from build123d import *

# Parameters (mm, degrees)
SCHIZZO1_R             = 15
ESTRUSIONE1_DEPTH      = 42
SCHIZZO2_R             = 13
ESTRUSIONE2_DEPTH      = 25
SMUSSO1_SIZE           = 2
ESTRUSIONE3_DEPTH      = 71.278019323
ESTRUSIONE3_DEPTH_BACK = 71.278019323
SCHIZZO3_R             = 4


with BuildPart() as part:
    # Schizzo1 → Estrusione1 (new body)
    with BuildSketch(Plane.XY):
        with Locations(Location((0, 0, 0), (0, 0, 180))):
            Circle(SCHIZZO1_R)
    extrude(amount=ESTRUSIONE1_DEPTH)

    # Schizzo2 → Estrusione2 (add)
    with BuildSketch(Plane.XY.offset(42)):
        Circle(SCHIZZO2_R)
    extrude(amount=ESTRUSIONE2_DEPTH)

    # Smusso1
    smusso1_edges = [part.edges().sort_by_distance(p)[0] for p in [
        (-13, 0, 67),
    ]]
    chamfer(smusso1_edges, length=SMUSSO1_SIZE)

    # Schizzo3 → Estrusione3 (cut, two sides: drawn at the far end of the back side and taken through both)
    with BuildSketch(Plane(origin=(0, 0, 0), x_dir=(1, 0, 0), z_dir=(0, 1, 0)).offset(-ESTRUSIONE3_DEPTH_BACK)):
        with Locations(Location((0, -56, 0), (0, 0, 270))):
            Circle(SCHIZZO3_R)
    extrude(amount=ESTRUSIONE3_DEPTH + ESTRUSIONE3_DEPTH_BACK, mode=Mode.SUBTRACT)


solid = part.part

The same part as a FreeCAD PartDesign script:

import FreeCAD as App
import Part
import Sketcher
from FreeCAD import Vector


def edges_at(feature, points):
    """Names of the edges that pass closest to the given points."""
    edges = feature.Shape.Edges
    near = lambda p: min(range(len(edges)), key=lambda i: edges[i].distToShape(Part.Vertex(*p))[0])
    return sorted({f"Edge{near(p) + 1}" for p in points})

doc = App.newDocument("Part")
body = doc.addObject("PartDesign::Body", "Body")

sketch1 = body.newObject("Sketcher::SketchObject", "Sketch")
sketch1.AttachmentSupport = (doc.getObject("XY_Plane"), [""])
sketch1.MapMode = "FlatFace"
sketch1.addGeometry(Part.Circle(Vector(0, 0, 0), Vector(0, 0, 1), 15), False)
sketch1.addConstraint([
    Sketcher.Constraint("Coincident", 0, 3, -1, 1),
    Sketcher.Constraint("Diameter", 0, 30.0),
])
pad1 = body.newObject("PartDesign::Pad", "Pad")
pad1.Profile = sketch1
pad1.Length = 42

sketch2 = body.newObject("Sketcher::SketchObject", "Sketch001")
sketch2.AttachmentSupport = (doc.getObject("XY_Plane"), [""])
sketch2.MapMode = "FlatFace"
sketch2.AttachmentOffset = App.Placement(Vector(0, 0, 42), App.Rotation())
sketch2.addGeometry(Part.Circle(Vector(0, 0, 0), Vector(0, 0, 1), 13), False)
sketch2.addConstraint([
    Sketcher.Constraint("Coincident", 0, 3, -1, 1),
    Sketcher.Constraint("Diameter", 0, 26.0),
])
pad2 = body.newObject("PartDesign::Pad", "Pad001")
pad2.Profile = sketch2
pad2.Length = 25
doc.recompute()

chamfer = body.newObject("PartDesign::Chamfer", "Chamfer")
chamfer.Base = (pad2, edges_at(pad2, [(-13, 0, 67)]))
chamfer.Size = 2

sketch3 = body.newObject("Sketcher::SketchObject", "Sketch002")
sketch3.AttachmentSupport = (doc.getObject("XZ_Plane"), [""])
sketch3.MapMode = "FlatFace"
sketch3.addGeometry(Part.Circle(Vector(0, 56, 0), Vector(0, 0, 1), 4), False)
sketch3.addConstraint([
    Sketcher.Constraint("PointOnObject", 0, 3, -2),
    Sketcher.Constraint("Diameter", 0, 8.0),
    Sketcher.Constraint("DistanceY", -1, 1, 0, 3, 56.0),
])
pocket1 = body.newObject("PartDesign::Pocket", "Pocket")
pocket1.Profile = sketch3
pocket1.Type = "ThroughAll"
pocket1.Midplane = True

doc.recompute()
